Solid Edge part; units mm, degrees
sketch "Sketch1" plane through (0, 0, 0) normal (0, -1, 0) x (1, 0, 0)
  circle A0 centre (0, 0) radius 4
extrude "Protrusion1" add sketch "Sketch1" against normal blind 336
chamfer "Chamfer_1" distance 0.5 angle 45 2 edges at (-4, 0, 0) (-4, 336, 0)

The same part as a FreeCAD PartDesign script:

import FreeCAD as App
import Part
import Sketcher


def edges_at(feature, points):
    """Names of the edges that pass closest to the given points."""
    edges = feature.Shape.Edges
    near = lambda p: min(range(len(edges)), key=lambda i: edges[i].distToShape(Part.Vertex(*p))[0])
    return sorted({f"Edge{near(p) + 1}" for p in points})

doc = App.newDocument("Part")
params = doc.addObject("Spreadsheet::Sheet", "Params")
for row, (alias, value) in enumerate([
    ("sketch1_diameter", "8 mm"),
    ("pad1_length", "336 mm"),
    ("chamfer_size", "0.5 mm"),
], start=1):
    params.set(f"A{row}", alias)
    params.set(f"B{row}", "=" + value)
    params.setAlias(f"B{row}", alias)

body = doc.addObject("PartDesign::Body", "Body")

# Sketch on XZ plane
sketch1 = body.newObject("Sketcher::SketchObject", "Sketch")
sketch1.AttachmentSupport = (doc.getObject("XZ_Plane"), [""])
sketch1.MapMode = "FlatFace"
sketch1.addGeometry(Part.Circle(App.Vector(0, 0, 0), App.Vector(0, 0, 1), 4), False)
sketch1.addConstraint(Sketcher.Constraint("Coincident", 0, 3, -1, 1))
sketch1.addConstraint(Sketcher.Constraint("Diameter", 0, 8.0))
sketch1.setExpression("Constraints[1]", "Params.sketch1_diameter")
pad1 = body.newObject("PartDesign::Pad", "Pad")
pad1.Profile = sketch1
pad1.setExpression("Length", "Params.pad1_length")
pad1.Reversed = True
doc.recompute()

chamfer = body.newObject("PartDesign::Chamfer", "Chamfer")
chamfer.Base = (pad1, edges_at(pad1, [(-4, 0, 0), (-4, 336, 0)]))
chamfer.setExpression("Size", "Params.chamfer_size")

doc.recompute()
